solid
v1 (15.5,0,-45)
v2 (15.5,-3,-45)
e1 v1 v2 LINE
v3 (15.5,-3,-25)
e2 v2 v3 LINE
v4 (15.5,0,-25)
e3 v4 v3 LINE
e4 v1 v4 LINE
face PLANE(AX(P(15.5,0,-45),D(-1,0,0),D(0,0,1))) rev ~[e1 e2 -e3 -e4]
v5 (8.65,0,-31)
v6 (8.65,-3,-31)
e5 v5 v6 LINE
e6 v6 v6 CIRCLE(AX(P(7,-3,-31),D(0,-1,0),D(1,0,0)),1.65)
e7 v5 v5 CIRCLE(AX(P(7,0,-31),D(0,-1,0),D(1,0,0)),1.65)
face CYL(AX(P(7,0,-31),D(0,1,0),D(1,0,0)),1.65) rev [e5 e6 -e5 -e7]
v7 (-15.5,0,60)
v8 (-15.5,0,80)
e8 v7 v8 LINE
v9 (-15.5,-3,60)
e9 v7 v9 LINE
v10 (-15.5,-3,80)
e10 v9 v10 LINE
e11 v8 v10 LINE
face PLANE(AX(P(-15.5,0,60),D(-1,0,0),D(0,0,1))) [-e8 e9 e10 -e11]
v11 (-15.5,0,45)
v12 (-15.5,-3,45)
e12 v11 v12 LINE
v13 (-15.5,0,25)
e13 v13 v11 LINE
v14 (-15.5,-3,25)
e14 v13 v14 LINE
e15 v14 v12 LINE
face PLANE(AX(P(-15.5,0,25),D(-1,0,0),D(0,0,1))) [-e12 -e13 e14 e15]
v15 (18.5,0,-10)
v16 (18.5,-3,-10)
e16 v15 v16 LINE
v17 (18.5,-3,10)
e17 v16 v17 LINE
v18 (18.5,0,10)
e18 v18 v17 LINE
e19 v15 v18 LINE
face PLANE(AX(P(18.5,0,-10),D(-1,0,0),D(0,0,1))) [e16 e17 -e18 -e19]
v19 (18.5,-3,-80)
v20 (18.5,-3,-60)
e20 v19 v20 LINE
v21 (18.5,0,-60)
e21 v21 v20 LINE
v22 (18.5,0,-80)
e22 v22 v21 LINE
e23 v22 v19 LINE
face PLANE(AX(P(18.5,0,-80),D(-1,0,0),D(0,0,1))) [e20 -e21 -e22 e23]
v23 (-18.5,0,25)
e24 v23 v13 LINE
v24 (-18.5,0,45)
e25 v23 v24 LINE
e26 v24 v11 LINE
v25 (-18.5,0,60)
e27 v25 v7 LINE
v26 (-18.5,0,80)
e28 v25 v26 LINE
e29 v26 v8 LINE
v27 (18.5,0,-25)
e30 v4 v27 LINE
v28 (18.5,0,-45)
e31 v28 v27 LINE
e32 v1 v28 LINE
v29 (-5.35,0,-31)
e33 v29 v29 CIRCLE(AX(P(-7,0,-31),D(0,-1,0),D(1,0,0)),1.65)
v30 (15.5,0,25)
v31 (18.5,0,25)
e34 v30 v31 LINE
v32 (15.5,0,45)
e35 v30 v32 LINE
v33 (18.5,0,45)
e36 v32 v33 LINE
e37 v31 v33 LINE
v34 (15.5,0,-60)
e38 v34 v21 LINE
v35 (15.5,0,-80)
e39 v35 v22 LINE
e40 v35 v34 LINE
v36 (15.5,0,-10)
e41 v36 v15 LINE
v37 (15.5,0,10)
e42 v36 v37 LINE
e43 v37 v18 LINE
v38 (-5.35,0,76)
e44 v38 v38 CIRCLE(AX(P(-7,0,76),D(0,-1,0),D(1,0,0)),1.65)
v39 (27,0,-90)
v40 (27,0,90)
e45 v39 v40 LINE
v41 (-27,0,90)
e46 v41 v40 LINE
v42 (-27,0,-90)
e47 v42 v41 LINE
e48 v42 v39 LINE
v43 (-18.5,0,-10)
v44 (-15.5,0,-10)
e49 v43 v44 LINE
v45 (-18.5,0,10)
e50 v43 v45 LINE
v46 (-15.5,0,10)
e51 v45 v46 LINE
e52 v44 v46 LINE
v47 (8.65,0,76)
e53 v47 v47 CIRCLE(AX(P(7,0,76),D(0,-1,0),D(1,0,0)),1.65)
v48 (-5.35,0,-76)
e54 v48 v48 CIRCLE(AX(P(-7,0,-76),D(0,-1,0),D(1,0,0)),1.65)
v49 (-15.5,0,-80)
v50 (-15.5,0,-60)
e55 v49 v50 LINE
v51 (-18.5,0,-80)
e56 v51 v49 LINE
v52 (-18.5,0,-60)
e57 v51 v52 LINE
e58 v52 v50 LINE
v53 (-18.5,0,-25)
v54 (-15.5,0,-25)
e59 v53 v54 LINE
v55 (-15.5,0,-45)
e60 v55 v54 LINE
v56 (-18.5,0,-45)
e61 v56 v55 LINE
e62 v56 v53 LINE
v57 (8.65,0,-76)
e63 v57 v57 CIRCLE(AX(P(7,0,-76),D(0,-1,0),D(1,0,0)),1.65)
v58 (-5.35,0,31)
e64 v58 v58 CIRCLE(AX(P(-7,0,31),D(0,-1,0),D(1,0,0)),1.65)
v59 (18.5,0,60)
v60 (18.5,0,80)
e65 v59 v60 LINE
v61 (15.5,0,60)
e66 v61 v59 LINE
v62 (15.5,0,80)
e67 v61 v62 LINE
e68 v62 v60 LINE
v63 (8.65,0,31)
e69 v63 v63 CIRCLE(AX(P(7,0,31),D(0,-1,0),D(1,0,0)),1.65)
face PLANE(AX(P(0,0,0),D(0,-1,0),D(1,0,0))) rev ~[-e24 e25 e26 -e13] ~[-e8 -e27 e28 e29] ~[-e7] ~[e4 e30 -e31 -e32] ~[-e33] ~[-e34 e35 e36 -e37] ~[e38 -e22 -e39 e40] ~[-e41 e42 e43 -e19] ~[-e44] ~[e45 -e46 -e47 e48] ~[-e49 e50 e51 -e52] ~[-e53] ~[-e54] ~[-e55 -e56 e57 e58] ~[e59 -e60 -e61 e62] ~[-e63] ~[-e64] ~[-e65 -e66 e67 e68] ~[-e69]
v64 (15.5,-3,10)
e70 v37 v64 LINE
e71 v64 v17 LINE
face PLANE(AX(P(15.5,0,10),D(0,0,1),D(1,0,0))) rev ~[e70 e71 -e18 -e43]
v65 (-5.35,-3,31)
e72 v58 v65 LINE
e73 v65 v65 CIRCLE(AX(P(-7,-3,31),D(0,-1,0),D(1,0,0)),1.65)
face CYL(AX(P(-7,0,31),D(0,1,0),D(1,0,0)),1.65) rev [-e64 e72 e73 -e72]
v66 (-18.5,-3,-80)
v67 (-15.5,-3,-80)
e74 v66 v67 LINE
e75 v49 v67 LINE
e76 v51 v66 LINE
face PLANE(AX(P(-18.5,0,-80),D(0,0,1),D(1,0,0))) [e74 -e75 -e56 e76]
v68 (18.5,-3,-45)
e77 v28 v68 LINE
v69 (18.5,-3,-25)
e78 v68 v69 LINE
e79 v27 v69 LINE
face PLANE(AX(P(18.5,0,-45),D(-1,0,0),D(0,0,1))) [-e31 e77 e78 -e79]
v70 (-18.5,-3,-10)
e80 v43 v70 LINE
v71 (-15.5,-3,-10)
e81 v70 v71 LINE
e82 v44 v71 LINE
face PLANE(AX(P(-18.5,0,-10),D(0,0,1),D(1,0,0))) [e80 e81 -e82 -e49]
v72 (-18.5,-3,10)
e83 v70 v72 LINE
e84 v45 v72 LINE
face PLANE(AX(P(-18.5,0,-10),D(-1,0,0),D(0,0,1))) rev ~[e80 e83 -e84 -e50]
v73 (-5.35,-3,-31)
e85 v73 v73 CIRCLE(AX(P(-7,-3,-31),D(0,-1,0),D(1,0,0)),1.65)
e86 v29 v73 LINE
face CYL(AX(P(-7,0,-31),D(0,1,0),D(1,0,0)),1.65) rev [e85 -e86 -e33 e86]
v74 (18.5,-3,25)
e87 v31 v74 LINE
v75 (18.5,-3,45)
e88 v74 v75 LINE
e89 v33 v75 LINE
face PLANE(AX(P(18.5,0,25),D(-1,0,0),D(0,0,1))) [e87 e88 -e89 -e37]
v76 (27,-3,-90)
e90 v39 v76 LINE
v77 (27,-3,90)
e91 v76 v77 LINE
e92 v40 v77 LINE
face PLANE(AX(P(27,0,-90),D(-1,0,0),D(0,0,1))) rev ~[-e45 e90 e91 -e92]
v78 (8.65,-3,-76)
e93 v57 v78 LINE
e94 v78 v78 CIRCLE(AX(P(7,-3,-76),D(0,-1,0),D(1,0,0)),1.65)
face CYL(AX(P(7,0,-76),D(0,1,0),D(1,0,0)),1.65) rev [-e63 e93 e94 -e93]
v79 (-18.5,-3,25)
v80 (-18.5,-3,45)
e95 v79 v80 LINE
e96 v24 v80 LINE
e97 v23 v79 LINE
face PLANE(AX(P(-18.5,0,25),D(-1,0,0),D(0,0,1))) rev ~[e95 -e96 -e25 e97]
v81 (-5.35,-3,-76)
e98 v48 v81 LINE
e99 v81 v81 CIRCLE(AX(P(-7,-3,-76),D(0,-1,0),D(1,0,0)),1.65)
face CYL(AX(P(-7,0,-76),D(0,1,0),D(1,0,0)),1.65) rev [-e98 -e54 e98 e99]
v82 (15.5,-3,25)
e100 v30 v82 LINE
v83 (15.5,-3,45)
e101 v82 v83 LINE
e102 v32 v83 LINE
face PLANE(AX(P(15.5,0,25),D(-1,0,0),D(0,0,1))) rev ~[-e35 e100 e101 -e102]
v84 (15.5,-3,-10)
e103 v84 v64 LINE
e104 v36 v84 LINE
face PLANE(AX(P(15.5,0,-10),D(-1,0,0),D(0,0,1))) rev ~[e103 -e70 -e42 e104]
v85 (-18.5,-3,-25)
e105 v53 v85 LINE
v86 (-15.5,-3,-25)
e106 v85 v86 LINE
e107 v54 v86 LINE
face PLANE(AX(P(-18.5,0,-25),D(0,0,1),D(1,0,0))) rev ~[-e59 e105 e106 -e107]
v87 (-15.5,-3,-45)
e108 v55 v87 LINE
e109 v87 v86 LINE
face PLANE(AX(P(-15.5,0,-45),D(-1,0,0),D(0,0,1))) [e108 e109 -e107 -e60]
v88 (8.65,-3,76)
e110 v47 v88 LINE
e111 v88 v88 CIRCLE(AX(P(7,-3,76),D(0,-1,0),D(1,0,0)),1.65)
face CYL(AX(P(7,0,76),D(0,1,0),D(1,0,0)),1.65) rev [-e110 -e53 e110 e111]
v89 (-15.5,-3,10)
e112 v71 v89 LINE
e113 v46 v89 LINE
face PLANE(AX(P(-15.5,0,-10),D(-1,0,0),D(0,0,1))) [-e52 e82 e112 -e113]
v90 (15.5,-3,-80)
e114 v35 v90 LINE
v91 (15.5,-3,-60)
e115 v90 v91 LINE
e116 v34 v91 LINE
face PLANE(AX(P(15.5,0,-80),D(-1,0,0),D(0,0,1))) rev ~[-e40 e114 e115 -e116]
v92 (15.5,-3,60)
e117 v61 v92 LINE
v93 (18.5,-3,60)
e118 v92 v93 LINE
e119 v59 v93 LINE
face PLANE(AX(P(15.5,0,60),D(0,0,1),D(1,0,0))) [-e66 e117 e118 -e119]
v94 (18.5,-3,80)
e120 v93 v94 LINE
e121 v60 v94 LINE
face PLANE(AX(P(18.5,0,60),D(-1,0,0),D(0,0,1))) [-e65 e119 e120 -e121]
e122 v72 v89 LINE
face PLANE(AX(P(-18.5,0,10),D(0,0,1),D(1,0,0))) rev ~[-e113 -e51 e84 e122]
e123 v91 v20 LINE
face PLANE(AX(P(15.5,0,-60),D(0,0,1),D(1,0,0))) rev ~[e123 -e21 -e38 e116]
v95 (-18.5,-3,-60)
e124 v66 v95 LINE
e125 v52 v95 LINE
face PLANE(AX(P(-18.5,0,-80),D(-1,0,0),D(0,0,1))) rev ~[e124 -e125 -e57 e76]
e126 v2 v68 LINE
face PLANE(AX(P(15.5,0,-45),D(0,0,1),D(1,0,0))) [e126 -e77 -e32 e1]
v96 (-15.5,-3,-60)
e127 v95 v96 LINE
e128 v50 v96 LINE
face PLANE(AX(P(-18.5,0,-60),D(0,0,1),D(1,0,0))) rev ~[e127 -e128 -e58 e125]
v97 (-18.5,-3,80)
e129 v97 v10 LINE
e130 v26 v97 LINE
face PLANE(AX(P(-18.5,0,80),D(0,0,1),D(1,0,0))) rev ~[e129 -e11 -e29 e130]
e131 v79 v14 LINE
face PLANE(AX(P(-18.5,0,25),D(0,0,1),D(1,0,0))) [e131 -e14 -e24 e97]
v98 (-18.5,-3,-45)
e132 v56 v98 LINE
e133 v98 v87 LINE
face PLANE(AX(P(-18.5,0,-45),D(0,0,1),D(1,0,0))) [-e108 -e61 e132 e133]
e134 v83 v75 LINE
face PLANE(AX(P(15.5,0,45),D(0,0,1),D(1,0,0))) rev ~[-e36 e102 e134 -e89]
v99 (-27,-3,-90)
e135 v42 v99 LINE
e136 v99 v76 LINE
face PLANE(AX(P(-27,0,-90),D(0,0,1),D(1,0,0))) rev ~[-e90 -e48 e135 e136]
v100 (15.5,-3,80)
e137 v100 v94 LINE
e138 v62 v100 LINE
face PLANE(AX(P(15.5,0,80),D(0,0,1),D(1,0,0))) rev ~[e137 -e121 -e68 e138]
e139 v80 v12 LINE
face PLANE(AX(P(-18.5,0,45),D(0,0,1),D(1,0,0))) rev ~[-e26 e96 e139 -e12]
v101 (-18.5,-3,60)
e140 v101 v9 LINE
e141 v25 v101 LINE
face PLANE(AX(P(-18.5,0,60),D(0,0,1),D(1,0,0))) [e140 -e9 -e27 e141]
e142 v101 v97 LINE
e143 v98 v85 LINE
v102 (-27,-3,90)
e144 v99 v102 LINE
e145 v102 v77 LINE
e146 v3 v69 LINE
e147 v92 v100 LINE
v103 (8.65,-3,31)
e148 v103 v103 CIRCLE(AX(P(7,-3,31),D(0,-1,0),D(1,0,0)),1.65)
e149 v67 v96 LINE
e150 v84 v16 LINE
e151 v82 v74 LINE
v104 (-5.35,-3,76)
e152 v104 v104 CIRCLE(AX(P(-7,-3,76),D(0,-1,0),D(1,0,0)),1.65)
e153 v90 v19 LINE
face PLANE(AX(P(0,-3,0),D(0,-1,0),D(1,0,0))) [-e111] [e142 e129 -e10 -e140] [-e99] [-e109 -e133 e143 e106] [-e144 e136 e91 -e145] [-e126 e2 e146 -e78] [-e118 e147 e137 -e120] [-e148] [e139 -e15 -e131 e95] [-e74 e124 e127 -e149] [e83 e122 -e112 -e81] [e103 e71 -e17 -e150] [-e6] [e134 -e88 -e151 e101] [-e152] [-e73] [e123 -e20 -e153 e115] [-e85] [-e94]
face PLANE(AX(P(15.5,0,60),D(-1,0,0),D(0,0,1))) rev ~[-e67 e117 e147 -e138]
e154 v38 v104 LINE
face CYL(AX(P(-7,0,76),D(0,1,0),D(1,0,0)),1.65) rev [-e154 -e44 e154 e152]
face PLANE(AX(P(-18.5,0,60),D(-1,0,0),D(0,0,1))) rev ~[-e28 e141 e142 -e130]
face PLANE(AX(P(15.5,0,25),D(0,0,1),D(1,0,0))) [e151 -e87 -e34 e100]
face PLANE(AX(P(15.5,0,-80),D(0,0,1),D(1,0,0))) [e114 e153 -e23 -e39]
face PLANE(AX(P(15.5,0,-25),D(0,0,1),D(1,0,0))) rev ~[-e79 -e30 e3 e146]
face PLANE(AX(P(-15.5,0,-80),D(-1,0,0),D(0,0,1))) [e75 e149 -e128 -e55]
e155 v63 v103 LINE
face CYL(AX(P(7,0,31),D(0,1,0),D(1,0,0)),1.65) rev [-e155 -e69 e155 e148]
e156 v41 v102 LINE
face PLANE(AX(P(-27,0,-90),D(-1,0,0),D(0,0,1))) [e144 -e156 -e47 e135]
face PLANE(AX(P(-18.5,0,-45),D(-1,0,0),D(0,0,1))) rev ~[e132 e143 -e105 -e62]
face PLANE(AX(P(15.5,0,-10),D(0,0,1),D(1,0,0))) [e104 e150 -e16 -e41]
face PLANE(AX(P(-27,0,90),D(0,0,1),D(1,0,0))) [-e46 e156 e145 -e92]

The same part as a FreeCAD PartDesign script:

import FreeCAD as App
import Part
import Sketcher
from FreeCAD import Vector


def add_polygon(sketch, points):
    """Adds a closed chain of lines whose ends are joined by coincident constraints."""
    first, n = sketch.GeometryCount, len(points)
    for a, b in zip(points, points[1:] + points[:1]):
        sketch.addGeometry(Part.LineSegment(App.Vector(*a, 0), App.Vector(*b, 0)), False)
    for i in range(n):
        sketch.addConstraint(Sketcher.Constraint("Coincident", first + i, 2, first + (i + 1) % n, 1))

doc = App.newDocument("Part")
body = doc.addObject("PartDesign::Body", "Body")

sketch1 = body.newObject("Sketcher::SketchObject", "Sketch")
sketch1.AttachmentSupport = (doc.getObject("XZ_Plane"), [""])
sketch1.MapMode = "FlatFace"
add_polygon(sketch1, [(-27, 90), (-27, -90), (27, -90), (27, 90)])
add_polygon(sketch1, [(-15.5, -80), (-18.5, -80), (-18.5, -60), (-15.5, -60)])
sketch1.addGeometry(Part.Circle(Vector(-7, -76, 0), Vector(0, 0, 1), 1.6), False)
add_polygon(sketch1, [(-15.5, -45), (-18.5, -45), (-18.5, -25), (-15.5, -25)])
sketch1.addGeometry(Part.Circle(Vector(-7, -31, 0), Vector(0, 0, 1), 1.6), False)
sketch1.addGeometry(Part.Circle(Vector(7, -76, 0), Vector(0, 0, 1), 1.6), False)
add_polygon(sketch1, [(18.5, -80), (15.5, -80), (15.5, -60), (18.5, -60)])
sketch1.addGeometry(Part.Circle(Vector(7, -31, 0), Vector(0, 0, 1), 1.6), False)
add_polygon(sketch1, [(18.5, -45), (15.5, -45), (15.5, -25), (18.5, -25)])
add_polygon(sketch1, [(-15.5, -10), (-18.5, -10), (-18.5, 10), (-15.5, 10)])
add_polygon(sketch1, [(-15.5, 25), (-18.5, 25), (-18.5, 45), (-15.5, 45)])
sketch1.addGeometry(Part.Circle(Vector(-7, 31, 0), Vector(0, 0, 1), 1.6), False)
add_polygon(sketch1, [(-15.5, 60), (-18.5, 60), (-18.5, 80), (-15.5, 80)])
sketch1.addGeometry(Part.Circle(Vector(-7, 76, 0), Vector(0, 0, 1), 1.6), False)
sketch1.addGeometry(Part.Circle(Vector(7, 31, 0), Vector(0, 0, 1), 1.6), False)
add_polygon(sketch1, [(18.5, -10), (15.5, -10), (15.5, 10), (18.5, 10)])
add_polygon(sketch1, [(18.5, 25), (15.5, 25), (15.5, 45), (18.5, 45)])
sketch1.addGeometry(Part.Circle(Vector(7, 76, 0), Vector(0, 0, 1), 1.6), False)
add_polygon(sketch1, [(18.5, 60), (15.5, 60), (15.5, 80), (18.5, 80)])
sketch1.addConstraint(Sketcher.Constraint("Vertical", 0))
sketch1.addConstraint(Sketcher.Constraint("Horizontal", 1))
sketch1.addConstraint(Sketcher.Constraint("Vertical", 2))
sketch1.addConstraint(Sketcher.Constraint("Horizontal", 3))
sketch1.addConstraint(Sketcher.Constraint("Horizontal", 4))
sketch1.addConstraint(Sketcher.Constraint("Vertical", 5))
sketch1.addConstraint(Sketcher.Constraint("Horizontal", 6))
sketch1.addConstraint(Sketcher.Constraint("Vertical", 7))
sketch1.addConstraint(Sketcher.Constraint("Horizontal", 9))
sketch1.addConstraint(Sketcher.Constraint("Vertical", 10))
sketch1.addConstraint(Sketcher.Constraint("Horizontal", 11))
sketch1.addConstraint(Sketcher.Constraint("Vertical", 12))
sketch1.addConstraint(Sketcher.Constraint("Horizontal", 15))
sketch1.addConstraint(Sketcher.Constraint("Vertical", 16))
sketch1.addConstraint(Sketcher.Constraint("Horizontal", 17))
sketch1.addConstraint(Sketcher.Constraint("Vertical", 18))
sketch1.addConstraint(Sketcher.Constraint("Horizontal", 20))
sketch1.addConstraint(Sketcher.Constraint("Vertical", 21))
sketch1.addConstraint(Sketcher.Constraint("Horizontal", 22))
sketch1.addConstraint(Sketcher.Constraint("Vertical", 23))
sketch1.addConstraint(Sketcher.Constraint("Horizontal", 24))
sketch1.addConstraint(Sketcher.Constraint("Vertical", 25))
sketch1.addConstraint(Sketcher.Constraint("Horizontal", 26))
sketch1.addConstraint(Sketcher.Constraint("Vertical", 27))
sketch1.addConstraint(Sketcher.Constraint("Horizontal", 28))
sketch1.addConstraint(Sketcher.Constraint("Vertical", 29))
sketch1.addConstraint(Sketcher.Constraint("Horizontal", 30))
sketch1.addConstraint(Sketcher.Constraint("Vertical", 31))
sketch1.addConstraint(Sketcher.Constraint("Horizontal", 33))
sketch1.addConstraint(Sketcher.Constraint("Vertical", 34))
sketch1.addConstraint(Sketcher.Constraint("Horizontal", 35))
sketch1.addConstraint(Sketcher.Constraint("Vertical", 36))
sketch1.addConstraint(Sketcher.Constraint("Horizontal", 39))
sketch1.addConstraint(Sketcher.Constraint("Vertical", 40))
sketch1.addConstraint(Sketcher.Constraint("Horizontal", 41))
sketch1.addConstraint(Sketcher.Constraint("Vertical", 42))
sketch1.addConstraint(Sketcher.Constraint("Horizontal", 43))
sketch1.addConstraint(Sketcher.Constraint("Vertical", 44))
sketch1.addConstraint(Sketcher.Constraint("Horizontal", 45))
sketch1.addConstraint(Sketcher.Constraint("Vertical", 46))
sketch1.addConstraint(Sketcher.Constraint("Horizontal", 48))
sketch1.addConstraint(Sketcher.Constraint("Vertical", 49))
sketch1.addConstraint(Sketcher.Constraint("Horizontal", 50))
sketch1.addConstraint(Sketcher.Constraint("Vertical", 51))
sketch1.addConstraint(Sketcher.Constraint("Equal", 8, 13))
sketch1.addConstraint(Sketcher.Constraint("Equal", 13, 14))
sketch1.addConstraint(Sketcher.Constraint("Equal", 14, 19))
sketch1.addConstraint(Sketcher.Constraint("Equal", 19, 32))
sketch1.addConstraint(Sketcher.Constraint("Equal", 32, 37))
sketch1.addConstraint(Sketcher.Constraint("Equal", 37, 38))
sketch1.addConstraint(Sketcher.Constraint("Equal", 38, 47))
sketch1.addConstraint(Sketcher.Constraint("Symmetric", 19, 3, 32, 3, -1, 1))
sketch1.addConstraint(Sketcher.Constraint("Symmetric", 14, 3, 37, 3, -1, 1))
sketch1.addConstraint(Sketcher.Constraint("Symmetric", 13, 3, 38, 3, -1, 1))
sketch1.addConstraint(Sketcher.Constraint("Symmetric", 8, 3, 47, 3, -1, 1))
sketch1.addConstraint(Sketcher.Constraint("Symmetric", 0, 2, 2, 2, -1, 1))
sketch1.addConstraint(Sketcher.Constraint("Symmetric", 22, 2, 28, 2, -1, 1))
sketch1.addConstraint(Sketcher.Constraint("Symmetric", 20, 2, 30, 2, -1, 1))
sketch1.addConstraint(Sketcher.Constraint("Symmetric", 17, 2, 33, 2, -1, 1))
sketch1.addConstraint(Sketcher.Constraint("Symmetric", 15, 2, 35, 2, -1, 1))
sketch1.addConstraint(Sketcher.Constraint("Symmetric", 26, 2, 39, 2, -1, 1))
sketch1.addConstraint(Sketcher.Constraint("Symmetric", 24, 2, 41, 2, -1, 1))
sketch1.addConstraint(Sketcher.Constraint("Symmetric", 11, 2, 43, 2, -1, 1))
sketch1.addConstraint(Sketcher.Constraint("Symmetric", 9, 2, 45, 2, -1, 1))
sketch1.addConstraint(Sketcher.Constraint("Symmetric", 6, 2, 48, 2, -1, 1))
sketch1.addConstraint(Sketcher.Constraint("Symmetric", 4, 2, 50, 2, -1, 1))
sketch1.addConstraint(Sketcher.Constraint("Symmetric", 8, 3, 14, 3, -2))
sketch1.addConstraint(Sketcher.Constraint("Symmetric", 13, 3, 19, 3, -2))
sketch1.addConstraint(Sketcher.Constraint("Symmetric", 7, 2, 15, 2, -2))
sketch1.addConstraint(Sketcher.Constraint("Symmetric", 5, 2, 17, 2, -2))
sketch1.addConstraint(Sketcher.Constraint("Symmetric", 12, 2, 20, 2, -2))
sketch1.addConstraint(Sketcher.Constraint("Symmetric", 10, 2, 22, 2, -2))
sketch1.addConstraint(Sketcher.Constraint("Horizontal", 27, 2, 39, 2))
sketch1.addConstraint(Sketcher.Constraint("Vertical", 8, 3, 13, 3))
sketch1.addConstraint(Sketcher.Constraint("Vertical", 5, 2, 9, 2))
sketch1.addConstraint(Sketcher.Constraint("Vertical", 7, 2, 11, 2))
sketch1.addConstraint(Sketcher.Constraint("Vertical", 10, 2, 24, 2))
sketch1.addConstraint(Sketcher.Constraint("Vertical", 12, 2, 26, 2))
sketch1.addConstraint(Sketcher.Constraint("Equal", 7, 10))
sketch1.addConstraint(Sketcher.Constraint("Equal", 23, 25))
sketch1.addConstraint(Sketcher.Constraint("Diameter", 8, 3.3))
sketch1.addConstraint(Sketcher.Constraint("DistanceX", 1, 1, 1, 2, 54.0))
sketch1.addConstraint(Sketcher.Constraint("DistanceX", 4, 2, 4, 1, 3.0))
sketch1.addConstraint(Sketcher.Constraint("DistanceY", 0, 2, 0, 1, 180.0))
sketch1.addConstraint(Sketcher.Constraint("DistanceY", 5, 1, 5, 2, 20.0))
sketch1.addConstraint(Sketcher.Constraint("DistanceX", 8, 3, -1, 1, 7.0))
sketch1.addConstraint(Sketcher.Constraint("DistanceY", 8, 3, -1, 1, 76.0))
sketch1.addConstraint(Sketcher.Constraint("DistanceY", 13, 3, -1, 1, 31.0))
sketch1.addConstraint(Sketcher.Constraint("DistanceY", 4, 2, -1, 1, 80.0))
sketch1.addConstraint(Sketcher.Constraint("DistanceY", 9, 2, -1, 1, 45.0))
sketch1.addConstraint(Sketcher.Constraint("DistanceX", 7, 2, 15, 2, 31.0))
pad1 = body.newObject("PartDesign::Pad", "Pad")
pad1.Profile = sketch1
pad1.Length = 3

doc.recompute()
